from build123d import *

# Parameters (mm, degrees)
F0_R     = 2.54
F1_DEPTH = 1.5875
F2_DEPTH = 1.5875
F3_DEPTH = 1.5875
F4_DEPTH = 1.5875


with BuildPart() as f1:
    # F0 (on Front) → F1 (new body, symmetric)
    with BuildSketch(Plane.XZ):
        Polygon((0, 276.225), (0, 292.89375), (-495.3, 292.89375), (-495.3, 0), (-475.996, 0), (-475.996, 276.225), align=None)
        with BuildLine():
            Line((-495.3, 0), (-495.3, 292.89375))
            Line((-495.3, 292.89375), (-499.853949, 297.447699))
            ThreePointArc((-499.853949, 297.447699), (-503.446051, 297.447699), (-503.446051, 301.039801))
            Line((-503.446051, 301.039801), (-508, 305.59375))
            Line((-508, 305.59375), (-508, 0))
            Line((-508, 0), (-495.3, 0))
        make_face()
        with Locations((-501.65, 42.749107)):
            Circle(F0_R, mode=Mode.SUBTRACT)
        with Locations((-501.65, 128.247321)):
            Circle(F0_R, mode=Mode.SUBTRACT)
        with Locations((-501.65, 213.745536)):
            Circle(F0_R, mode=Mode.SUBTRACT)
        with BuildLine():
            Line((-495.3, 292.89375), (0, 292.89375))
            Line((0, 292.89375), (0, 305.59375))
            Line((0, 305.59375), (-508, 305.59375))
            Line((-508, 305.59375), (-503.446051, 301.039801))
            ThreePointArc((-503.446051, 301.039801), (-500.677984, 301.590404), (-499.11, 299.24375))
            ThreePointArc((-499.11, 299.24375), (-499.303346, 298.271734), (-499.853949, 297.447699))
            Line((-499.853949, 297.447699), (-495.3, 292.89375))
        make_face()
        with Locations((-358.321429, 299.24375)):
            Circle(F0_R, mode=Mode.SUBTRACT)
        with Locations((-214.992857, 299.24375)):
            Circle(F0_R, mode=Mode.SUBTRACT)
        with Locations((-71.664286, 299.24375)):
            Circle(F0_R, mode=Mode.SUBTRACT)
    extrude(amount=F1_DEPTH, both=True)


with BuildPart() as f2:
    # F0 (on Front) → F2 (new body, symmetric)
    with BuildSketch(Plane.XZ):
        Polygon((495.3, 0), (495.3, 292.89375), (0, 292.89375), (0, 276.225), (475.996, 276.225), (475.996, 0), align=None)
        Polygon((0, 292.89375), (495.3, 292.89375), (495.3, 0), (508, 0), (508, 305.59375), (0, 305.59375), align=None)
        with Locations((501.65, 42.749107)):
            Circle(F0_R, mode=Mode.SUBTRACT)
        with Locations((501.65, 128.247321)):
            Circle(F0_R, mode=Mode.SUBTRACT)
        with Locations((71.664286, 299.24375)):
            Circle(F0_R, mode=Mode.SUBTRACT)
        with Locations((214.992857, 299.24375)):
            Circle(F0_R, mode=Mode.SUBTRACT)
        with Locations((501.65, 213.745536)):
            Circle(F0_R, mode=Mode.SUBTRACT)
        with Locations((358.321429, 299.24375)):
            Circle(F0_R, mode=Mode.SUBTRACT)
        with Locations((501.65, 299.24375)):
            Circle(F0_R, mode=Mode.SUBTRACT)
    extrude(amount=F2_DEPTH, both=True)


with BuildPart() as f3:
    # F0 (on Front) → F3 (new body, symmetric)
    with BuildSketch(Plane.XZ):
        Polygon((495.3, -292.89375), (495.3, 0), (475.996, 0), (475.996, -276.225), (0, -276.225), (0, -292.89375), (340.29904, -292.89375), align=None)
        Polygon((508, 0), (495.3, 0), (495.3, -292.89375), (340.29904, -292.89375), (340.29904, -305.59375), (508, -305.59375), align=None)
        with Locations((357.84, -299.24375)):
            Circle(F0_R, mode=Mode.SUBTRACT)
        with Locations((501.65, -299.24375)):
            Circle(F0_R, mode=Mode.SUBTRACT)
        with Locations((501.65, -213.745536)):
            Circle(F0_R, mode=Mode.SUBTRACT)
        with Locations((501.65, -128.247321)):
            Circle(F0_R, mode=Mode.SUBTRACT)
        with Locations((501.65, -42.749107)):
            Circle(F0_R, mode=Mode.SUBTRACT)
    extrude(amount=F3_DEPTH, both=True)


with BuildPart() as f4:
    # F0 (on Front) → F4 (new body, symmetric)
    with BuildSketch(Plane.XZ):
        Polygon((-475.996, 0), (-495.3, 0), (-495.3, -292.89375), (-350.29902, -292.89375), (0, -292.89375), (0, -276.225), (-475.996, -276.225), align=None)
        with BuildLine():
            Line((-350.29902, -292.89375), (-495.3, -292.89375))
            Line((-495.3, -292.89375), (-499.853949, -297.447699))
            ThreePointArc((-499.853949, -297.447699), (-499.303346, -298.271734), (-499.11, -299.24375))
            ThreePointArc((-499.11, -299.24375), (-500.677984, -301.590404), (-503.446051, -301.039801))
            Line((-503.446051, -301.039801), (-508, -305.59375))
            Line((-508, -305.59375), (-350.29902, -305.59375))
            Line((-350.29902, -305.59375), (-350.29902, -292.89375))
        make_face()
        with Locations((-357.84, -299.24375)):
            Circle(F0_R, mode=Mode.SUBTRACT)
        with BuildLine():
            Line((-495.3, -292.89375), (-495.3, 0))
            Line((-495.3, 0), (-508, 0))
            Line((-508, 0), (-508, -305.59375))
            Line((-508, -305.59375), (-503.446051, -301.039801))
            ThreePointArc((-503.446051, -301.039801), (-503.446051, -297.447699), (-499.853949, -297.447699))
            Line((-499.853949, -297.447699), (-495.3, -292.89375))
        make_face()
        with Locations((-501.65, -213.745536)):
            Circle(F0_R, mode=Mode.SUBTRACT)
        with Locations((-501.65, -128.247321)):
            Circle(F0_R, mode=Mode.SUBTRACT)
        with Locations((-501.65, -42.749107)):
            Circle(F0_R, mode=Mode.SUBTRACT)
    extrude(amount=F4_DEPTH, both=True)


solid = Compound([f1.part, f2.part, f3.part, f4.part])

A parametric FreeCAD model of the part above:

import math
import FreeCAD as App
import Part
import Sketcher
from FreeCAD import Vector
Q = App.Units.Quantity


def add_polygon(sketch, points):
    """Adds a closed chain of lines whose ends are joined by coincident constraints."""
    first, n = sketch.GeometryCount, len(points)
    for a, b in zip(points, points[1:] + points[:1]):
        sketch.addGeometry(Part.LineSegment(App.Vector(*a, 0), App.Vector(*b, 0)), False)
    for i in range(n):
        sketch.addConstraint(Sketcher.Constraint("Coincident", first + i, 2, first + (i + 1) % n, 1))

doc = App.newDocument("Part")
body = doc.addObject("PartDesign::Body", "Body")

# Sketch on XZ plane
sketch1 = body.newObject("Sketcher::SketchObject", "Sketch")
sketch1.AttachmentSupport = (doc.getObject("XZ_Plane"), [""])
sketch1.MapMode = "FlatFace"
add_polygon(sketch1, [(0, 276.225), (0, 305.59375), (-508, 305.59375), (-508, 0), (-475.996, 0), (-475.996, 276.225)])  # lines 0-5
sketch1.addGeometry(Part.Circle(Vector(-501.65, 42.749107, 0), Vector(0, 0, 1), 2.54), False)  # 6
sketch1.addGeometry(Part.Circle(Vector(-501.65, 128.247321, 0), Vector(0, 0, 1), 2.54), False)  # 7
sketch1.addGeometry(Part.Circle(Vector(-501.65, 213.745536, 0), Vector(0, 0, 1), 2.54), False)  # 8
sketch1.addGeometry(Part.ArcOfCircle(Part.Circle(Vector(-501.65, 299.24375, 0), Vector(0, 0, 1), 2.54), math.radians(135), math.radians(315)), False)  # 9
sketch1.addGeometry(Part.ArcOfCircle(Part.Circle(Vector(-501.65, 299.24375, 0), Vector(0, 0, 1), 2.54), math.radians(-0.000005), math.radians(135.000007)), False)  # 10
sketch1.addGeometry(Part.ArcOfCircle(Part.Circle(Vector(-501.649998, 299.243749, 0), Vector(0, 0, 1), 2.539998), math.radians(-45.000029), math.radians(0.000012)), False)  # 11
sketch1.addGeometry(Part.Circle(Vector(-358.321429, 299.24375, 0), Vector(0, 0, 1), 2.54), False)  # 12
sketch1.addGeometry(Part.Circle(Vector(-214.992857, 299.24375, 0), Vector(0, 0, 1), 2.54), False)  # 13
sketch1.addGeometry(Part.Circle(Vector(-71.664286, 299.24375, 0), Vector(0, 0, 1), 2.54), False)  # 14
sketch1.addConstraint([
    Sketcher.Constraint("Tangent", 9, 1, 10, 2),
    Sketcher.Constraint("Tangent", 10, 1, 11, 2),
    Sketcher.Constraint("Tangent", 11, 1, 9, 2),
    Sketcher.Constraint("Vertical", 0),
    Sketcher.Constraint("Horizontal", 1),
    Sketcher.Constraint("Vertical", 2),
    Sketcher.Constraint("Horizontal", 3),
    Sketcher.Constraint("Vertical", 4),
    Sketcher.Constraint("Horizontal", 5),
    Sketcher.Constraint("Equal", 6, 7),
    Sketcher.Constraint("Equal", 7, 8),
    Sketcher.Constraint("Equal", 8, 9),
    Sketcher.Constraint("Equal", 10, 12),
    Sketcher.Constraint("Equal", 12, 13),
    Sketcher.Constraint("Equal", 13, 14),
    Sketcher.Constraint("PointOnObject", 0, 2, -2),
    Sketcher.Constraint("PointOnObject", 2, 2, -1),
    Sketcher.Constraint("Horizontal", 11, 3, 12, 3),
    Sketcher.Constraint("Horizontal", 12, 3, 13, 3),
    Sketcher.Constraint("Horizontal", 13, 3, 14, 3),
    Sketcher.Constraint("Horizontal", 14, 3, 10, 1),
    Sketcher.Constraint("Vertical", 6, 3, 7, 3),
    Sketcher.Constraint("Vertical", 7, 3, 8, 3),
    Sketcher.Constraint("Vertical", 8, 3, 9, 3),
    Sketcher.Constraint("Diameter", 6, Q("0.2 in")),
    Sketcher.Constraint("DistanceX", 1, 2, 1, 1, Q("20 in")),
    Sketcher.Constraint("DistanceX", 3, 1, 3, 2, Q("1.26 in")),
    Sketcher.Constraint("DistanceY", 0, 1, 0, 2, Q("1.15625 in")),
    Sketcher.Constraint("DistanceY", 2, 2, 2, 1, Q("12.03125 in")),
    Sketcher.Constraint("DistanceX", 6, 3, -1, 1, Q("19.75 in")),
    Sketcher.Constraint("DistanceY", 14, 3, 0, 2, Q("0.25 in")),
    Sketcher.Constraint("DistanceY", -1, 1, 9, 1, 301.039801),
    Sketcher.Constraint("DistanceY", -1, 1, 11, 1, 297.447699),
    Sketcher.Constraint("DistanceY", -1, 1, 7, 3, 128.247321),
    Sketcher.Constraint("DistanceX", 12, 3, -1, 1, 358.321429),
    Sketcher.Constraint("DistanceY", 6, 3, 8, 3, 170.996429),
    Sketcher.Constraint("DistanceX", 11, 3, 13, 3, 286.657141),
    Sketcher.Constraint("DistanceX", 13, 3, 14, 3, 143.328571),
    Sketcher.Constraint("DistanceY", -1, 1, 6, 3, 42.749107),
])
pad1 = body.newObject("PartDesign::Pad", "Pad")
pad1.Profile = sketch1
pad1.Length = Q("0.125 in")
pad1.Midplane = True
body2 = doc.addObject("PartDesign::Body", "Body001")

# Sketch on XZ plane
sketch2 = body2.newObject("Sketcher::SketchObject", "Sketch001")
sketch2.AttachmentSupport = (doc.getObject("XZ_Plane001"), [""])
sketch2.MapMode = "FlatFace"
add_polygon(sketch2, [(0, 276.225), (475.996, 276.225), (475.996, 0), (508, 0), (508, 305.59375), (0, 305.59375)])  # lines 0-5
sketch2.addGeometry(Part.Circle(Vector(501.65, 42.749107, 0), Vector(0, 0, 1), 2.54), False)  # 6
sketch2.addGeometry(Part.Circle(Vector(501.65, 128.247321, 0), Vector(0, 0, 1), 2.54), False)  # 7
sketch2.addGeometry(Part.Circle(Vector(71.664286, 299.24375, 0), Vector(0, 0, 1), 2.54), False)  # 8
sketch2.addGeometry(Part.Circle(Vector(214.992857, 299.24375, 0), Vector(0, 0, 1), 2.54), False)  # 9
sketch2.addGeometry(Part.Circle(Vector(501.65, 213.745536, 0), Vector(0, 0, 1), 2.54), False)  # 10
sketch2.addGeometry(Part.Circle(Vector(358.321429, 299.24375, 0), Vector(0, 0, 1), 2.54), False)  # 11
sketch2.addGeometry(Part.Circle(Vector(501.65, 299.24375, 0), Vector(0, 0, 1), 2.54), False)  # 12
sketch2.addConstraint([
    Sketcher.Constraint("Horizontal", 0),
    Sketcher.Constraint("Vertical", 1),
    Sketcher.Constraint("Horizontal", 2),
    Sketcher.Constraint("Vertical", 3),
    Sketcher.Constraint("Horizontal", 4),
    Sketcher.Constraint("Vertical", 5),
    Sketcher.Constraint("Equal", 6, 7),
    Sketcher.Constraint("Equal", 7, 8),
    Sketcher.Constraint("Equal", 8, 9),
    Sketcher.Constraint("Equal", 9, 10),
    Sketcher.Constraint("Equal", 10, 11),
    Sketcher.Constraint("Equal", 11, 12),
    Sketcher.Constraint("PointOnObject", 1, 2, -1),
    Sketcher.Constraint("PointOnObject", 4, 2, -2),
    Sketcher.Constraint("Horizontal", 8, 3, 9, 3),
    Sketcher.Constraint("Horizontal", 9, 3, 11, 3),
    Sketcher.Constraint("Horizontal", 11, 3, 12, 3),
    Sketcher.Constraint("Vertical", 6, 3, 7, 3),
    Sketcher.Constraint("Vertical", 7, 3, 10, 3),
    Sketcher.Constraint("Vertical", 10, 3, 12, 3),
    Sketcher.Constraint("Diameter", 6, Q("0.2 in")),
    Sketcher.Constraint("DistanceX", 4, 2, 4, 1, Q("20 in")),
    Sketcher.Constraint("DistanceX", 0, 1, 0, 2, Q("18.74 in")),
    Sketcher.Constraint("DistanceY", 1, 2, 1, 1, Q("10.875 in")),
    Sketcher.Constraint("DistanceY", 3, 1, 3, 2, Q("12.03125 in")),
    Sketcher.Constraint("DistanceX", -1, 1, 6, 3, Q("19.75 in")),
    Sketcher.Constraint("DistanceY", 12, 3, 3, 2, Q("0.25 in")),
    Sketcher.Constraint("DistanceY", -1, 1, 7, 3, 128.247321),
    Sketcher.Constraint("DistanceX", -1, 1, 11, 3, 358.321429),
    Sketcher.Constraint("DistanceX", 8, 3, 9, 3, 143.328571),
    Sketcher.Constraint("DistanceY", 6, 3, 10, 3, 170.996429),
    Sketcher.Constraint("DistanceY", -1, 1, 6, 3, 42.749107),
    Sketcher.Constraint("DistanceX", -1, 1, 8, 3, 71.664286),
])
pad2 = body2.newObject("PartDesign::Pad", "Pad001")
pad2.Profile = sketch2
pad2.Length = Q("0.125 in")
pad2.Midplane = True
body3 = doc.addObject("PartDesign::Body", "Body002")

# Sketch on XZ plane
sketch3 = body3.newObject("Sketcher::SketchObject", "Sketch002")
sketch3.AttachmentSupport = (doc.getObject("XZ_Plane002"), [""])
sketch3.MapMode = "FlatFace"
add_polygon(sketch3, [(475.996, 0), (475.996, -276.225), (0, -276.225), (0, -292.89375), (340.29904, -292.89375), (340.29904, -305.59375), (508, -305.59375), (508, 0)])  # lines 0-7
sketch3.addGeometry(Part.Circle(Vector(357.84, -299.24375, 0), Vector(0, 0, 1), 2.54), False)  # 8
sketch3.addGeometry(Part.Circle(Vector(501.65, -299.24375, 0), Vector(0, 0, 1), 2.54), False)  # 9
sketch3.addGeometry(Part.Circle(Vector(501.65, -213.745536, 0), Vector(0, 0, 1), 2.54), False)  # 10
sketch3.addGeometry(Part.Circle(Vector(501.65, -128.247321, 0), Vector(0, 0, 1), 2.54), False)  # 11
sketch3.addGeometry(Part.Circle(Vector(501.65, -42.749107, 0), Vector(0, 0, 1), 2.54), False)  # 12
sketch3.addConstraint([
    Sketcher.Constraint("Vertical", 0),
    Sketcher.Constraint("Horizontal", 1),
    Sketcher.Constraint("Vertical", 2),
    Sketcher.Constraint("Horizontal", 3),
    Sketcher.Constraint("Vertical", 4),
    Sketcher.Constraint("Horizontal", 5),
    Sketcher.Constraint("Vertical", 6),
    Sketcher.Constraint("Horizontal", 7),
    Sketcher.Constraint("Equal", 8, 9),
    Sketcher.Constraint("Equal", 9, 10),
    Sketcher.Constraint("Equal", 10, 11),
    Sketcher.Constraint("Equal", 11, 12),
    Sketcher.Constraint("PointOnObject", 1, 2, -2),
    Sketcher.Constraint("PointOnObject", 6, 2, -1),
    Sketcher.Constraint("Horizontal", 8, 3, 9, 3),
    Sketcher.Constraint("Vertical", 9, 3, 10, 3),
    Sketcher.Constraint("Vertical", 10, 3, 11, 3),
    Sketcher.Constraint("Vertical", 11, 3, 12, 3),
    Sketcher.Constraint("Diameter", 8, Q("0.2 in")),
    Sketcher.Constraint("DistanceY", 4, 2, 4, 1, Q("0.5 in")),
    Sketcher.Constraint("DistanceX", -1, 1, 5, 2, Q("20 in")),
    Sketcher.Constraint("DistanceX", 1, 2, 1, 1, Q("18.74 in")),
    Sketcher.Constraint("DistanceY", 0, 2, 0, 1, Q("10.875 in")),
    Sketcher.Constraint("DistanceY", 2, 2, 2, 1, Q("0.65625 in")),
    Sketcher.Constraint("DistanceX", -1, 1, 9, 3, Q("19.75 in")),
    Sketcher.Constraint("DistanceY", 8, 3, 2, 2, Q("0.25 in")),
    Sketcher.Constraint("DistanceX", 3, 1, 3, 2, Q("13.3976 in")),
    Sketcher.Constraint("DistanceX", -1, 1, 8, 3, 357.84),
    Sketcher.Constraint("DistanceY", 11, 3, -1, 1, 128.247321),
    Sketcher.Constraint("DistanceY", 10, 3, 12, 3, 170.996429),
    Sketcher.Constraint("DistanceY", 10, 3, -1, 1, 213.745536),
])
pad3 = body3.newObject("PartDesign::Pad", "Pad002")
pad3.Profile = sketch3
pad3.Length = Q("0.125 in")
pad3.Midplane = True
body4 = doc.addObject("PartDesign::Body", "Body003")

# Sketch on XZ plane
sketch4 = body4.newObject("Sketcher::SketchObject", "Sketch003")
sketch4.AttachmentSupport = (doc.getObject("XZ_Plane003"), [""])
sketch4.MapMode = "FlatFace"
add_polygon(sketch4, [(-475.996, 0), (-508, 0), (-508, -305.59375), (-350.29902, -305.59375), (-350.29902, -292.89375), (0, -292.89375), (0, -276.225), (-475.996, -276.225)])  # lines 0-7
sketch4.addGeometry(Part.ArcOfCircle(Part.Circle(Vector(-501.649998, -299.243749, 0), Vector(0, 0, 1), 2.539998), math.radians(-0.000012), math.radians(45.000029)), False)  # 8
sketch4.addGeometry(Part.ArcOfCircle(Part.Circle(Vector(-501.65, -299.24375, 0), Vector(0, 0, 1), 2.54), math.radians(-135.000007), math.radians(0.000005)), False)  # 9
sketch4.addGeometry(Part.ArcOfCircle(Part.Circle(Vector(-501.65, -299.24375, 0), Vector(0, 0, 1), 2.54), math.radians(45), math.radians(225)), False)  # 10
sketch4.addGeometry(Part.Circle(Vector(-501.65, -213.745536, 0), Vector(0, 0, 1), 2.54), False)  # 11
sketch4.addGeometry(Part.Circle(Vector(-357.84, -299.24375, 0), Vector(0, 0, 1), 2.54), False)  # 12
sketch4.addGeometry(Part.Circle(Vector(-501.65, -128.247321, 0), Vector(0, 0, 1), 2.54), False)  # 13
sketch4.addGeometry(Part.Circle(Vector(-501.65, -42.749107, 0), Vector(0, 0, 1), 2.54), False)  # 14
sketch4.addConstraint([
    Sketcher.Constraint("Tangent", 8, 1, 9, 2),
    Sketcher.Constraint("Tangent", 9, 1, 10, 2),
    Sketcher.Constraint("Tangent", 10, 1, 8, 2),
    Sketcher.Constraint("Horizontal", 0),
    Sketcher.Constraint("Vertical", 1),
    Sketcher.Constraint("Horizontal", 2),
    Sketcher.Constraint("Vertical", 3),
    Sketcher.Constraint("Horizontal", 4),
    Sketcher.Constraint("Vertical", 5),
    Sketcher.Constraint("Horizontal", 6),
    Sketcher.Constraint("Vertical", 7),
    Sketcher.Constraint("Equal", 10, 11),
    Sketcher.Constraint("Equal", 11, 12),
    Sketcher.Constraint("Equal", 12, 13),
    Sketcher.Constraint("Equal", 13, 14),
    Sketcher.Constraint("PointOnObject", 0, 2, -1),
    Sketcher.Constraint("PointOnObject", 4, 2, -2),
    Sketcher.Constraint("Horizontal", 10, 3, 12, 3),
    Sketcher.Constraint("Horizontal", 12, 3, 8, 1),
    Sketcher.Constraint("Vertical", 10, 3, 11, 3),
    Sketcher.Constraint("Vertical", 11, 3, 13, 3),
    Sketcher.Constraint("Vertical", 13, 3, 14, 3),
    Sketcher.Constraint("Diameter", 11, Q("0.2 in")),
    Sketcher.Constraint("DistanceY", 3, 1, 3, 2, Q("0.5 in")),
    Sketcher.Constraint("DistanceX", 0, 2, -1, 1, Q("20 in")),
    Sketcher.Constraint("DistanceX", 0, 2, 0, 1, Q("1.26 in")),
    Sketcher.Constraint("DistanceY", 1, 2, 1, 1, Q("12.03125 in")),
    Sketcher.Constraint("DistanceY", 5, 1, 5, 2, Q("0.65625 in")),
    Sketcher.Constraint("DistanceX", 8, 3, -1, 1, Q("19.7499999 in")),
    Sketcher.Constraint("DistanceY", 1, 2, 10, 3, Q("0.25 in")),
    Sketcher.Constraint("DistanceX", 2, 1, 2, 2, Q("6.2087 in")),
    Sketcher.Constraint("DistanceX", 12, 3, -1, 1, 357.84),
    Sketcher.Constraint("DistanceY", 9, 1, -1, 1, 301.039801),
    Sketcher.Constraint("DistanceY", 10, 1, -1, 1, 297.447699),
    Sketcher.Constraint("DistanceY", 13, 3, -1, 1, 128.247321),
    Sketcher.Constraint("DistanceY", 11, 3, 14, 3, 170.996429),
    Sketcher.Constraint("DistanceY", 11, 3, -1, 1, 213.745536),
])
pad4 = body4.newObject("PartDesign::Pad", "Pad003")
pad4.Profile = sketch4
pad4.Length = Q("0.125 in")
pad4.Midplane = True

doc.recompute()
